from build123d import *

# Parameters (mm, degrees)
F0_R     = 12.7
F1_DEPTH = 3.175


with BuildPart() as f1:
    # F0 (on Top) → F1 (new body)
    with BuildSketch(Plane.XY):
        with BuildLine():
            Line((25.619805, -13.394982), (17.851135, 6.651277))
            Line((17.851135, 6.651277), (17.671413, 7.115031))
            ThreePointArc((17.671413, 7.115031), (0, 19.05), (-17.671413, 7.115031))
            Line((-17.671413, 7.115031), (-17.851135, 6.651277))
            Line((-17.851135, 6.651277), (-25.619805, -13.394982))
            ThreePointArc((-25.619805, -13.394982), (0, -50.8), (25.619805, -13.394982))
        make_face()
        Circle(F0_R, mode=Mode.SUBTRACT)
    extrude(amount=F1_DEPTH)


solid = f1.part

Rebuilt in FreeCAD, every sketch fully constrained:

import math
import FreeCAD as App
import Part
import Sketcher

V = App.Vector
Q = App.Units.Quantity

doc = App.newDocument("Part")
body = doc.addObject("PartDesign::Body", "Body")

sketch1 = doc.addObject("Sketcher::SketchObject", "Sketch")
body.addObject(sketch1)
sketch1.AttachmentSupport = (doc.XY_Plane, [""])
sketch1.MapMode = "FlatFace"
sketch1.addGeometry([
    Part.LineSegment(V(25.62, -13.39, 0), V(17.85, 6.65, 0)),
    Part.LineSegment(V(17.85, 6.65, 0), V(17.67, 7.12, 0)),
    Part.ArcOfCircle(Part.Circle(V(0, 0, 0), V(0, 0, 1), 19.05), math.radians(22), math.radians(158)),
    Part.LineSegment(V(-17.67, 7.12, 0), V(-17.85, 6.65, 0)),
    Part.LineSegment(V(-17.85, 6.65, 0), V(-25.62, -13.39, 0)),
    Part.ArcOfCircle(Part.Circle(V(0, -23.32, 0), V(0, 0, 1), 27.48), math.radians(159), math.radians(381)),
    Part.Circle(V(0, 0, 0), V(0, 0, 1), 12.7),
], False)
sketch1.addConstraint([
    Sketcher.Constraint("Coincident", 0, 2, 1, 1),
    Sketcher.Constraint("Coincident", 1, 2, 2, 1),
    Sketcher.Constraint("Coincident", 2, 2, 3, 1),
    Sketcher.Constraint("Coincident", 3, 2, 4, 1),
    Sketcher.Constraint("Tangent", 4, 2, 5, 1),
    Sketcher.Constraint("Tangent", 5, 2, 0, 1),
    Sketcher.Constraint("Coincident", 2, 3, -1, 1),
    Sketcher.Constraint("Coincident", 6, 3, -1, 1),
    Sketcher.Constraint("Symmetric", 0, 2, 3, 2, -2),
    Sketcher.Constraint("PointOnObject", 5, 3, -2),
    Sketcher.Constraint("Parallel", 0, 1),
    Sketcher.Constraint("Parallel", 3, 4),
    Sketcher.Constraint("Diameter", 6, Q("1 in")),
    Sketcher.Constraint("Radius", 2, Q("0.75 in")),
    Sketcher.Constraint("Radius", 5, 27.476391),
    Sketcher.Constraint("Distance", 1, 0.497361),
    Sketcher.Constraint("DistanceY", 5, 3, -1, 1, 23.323609),
    Sketcher.Constraint("DistanceY", -1, 1, 1, 2, 7.115031),
])
pad1 = doc.addObject("PartDesign::Pad", "Pad")
body.addObject(pad1)
pad1.Profile = sketch1
pad1.Length = Q("0.125 in")

doc.recompute()
